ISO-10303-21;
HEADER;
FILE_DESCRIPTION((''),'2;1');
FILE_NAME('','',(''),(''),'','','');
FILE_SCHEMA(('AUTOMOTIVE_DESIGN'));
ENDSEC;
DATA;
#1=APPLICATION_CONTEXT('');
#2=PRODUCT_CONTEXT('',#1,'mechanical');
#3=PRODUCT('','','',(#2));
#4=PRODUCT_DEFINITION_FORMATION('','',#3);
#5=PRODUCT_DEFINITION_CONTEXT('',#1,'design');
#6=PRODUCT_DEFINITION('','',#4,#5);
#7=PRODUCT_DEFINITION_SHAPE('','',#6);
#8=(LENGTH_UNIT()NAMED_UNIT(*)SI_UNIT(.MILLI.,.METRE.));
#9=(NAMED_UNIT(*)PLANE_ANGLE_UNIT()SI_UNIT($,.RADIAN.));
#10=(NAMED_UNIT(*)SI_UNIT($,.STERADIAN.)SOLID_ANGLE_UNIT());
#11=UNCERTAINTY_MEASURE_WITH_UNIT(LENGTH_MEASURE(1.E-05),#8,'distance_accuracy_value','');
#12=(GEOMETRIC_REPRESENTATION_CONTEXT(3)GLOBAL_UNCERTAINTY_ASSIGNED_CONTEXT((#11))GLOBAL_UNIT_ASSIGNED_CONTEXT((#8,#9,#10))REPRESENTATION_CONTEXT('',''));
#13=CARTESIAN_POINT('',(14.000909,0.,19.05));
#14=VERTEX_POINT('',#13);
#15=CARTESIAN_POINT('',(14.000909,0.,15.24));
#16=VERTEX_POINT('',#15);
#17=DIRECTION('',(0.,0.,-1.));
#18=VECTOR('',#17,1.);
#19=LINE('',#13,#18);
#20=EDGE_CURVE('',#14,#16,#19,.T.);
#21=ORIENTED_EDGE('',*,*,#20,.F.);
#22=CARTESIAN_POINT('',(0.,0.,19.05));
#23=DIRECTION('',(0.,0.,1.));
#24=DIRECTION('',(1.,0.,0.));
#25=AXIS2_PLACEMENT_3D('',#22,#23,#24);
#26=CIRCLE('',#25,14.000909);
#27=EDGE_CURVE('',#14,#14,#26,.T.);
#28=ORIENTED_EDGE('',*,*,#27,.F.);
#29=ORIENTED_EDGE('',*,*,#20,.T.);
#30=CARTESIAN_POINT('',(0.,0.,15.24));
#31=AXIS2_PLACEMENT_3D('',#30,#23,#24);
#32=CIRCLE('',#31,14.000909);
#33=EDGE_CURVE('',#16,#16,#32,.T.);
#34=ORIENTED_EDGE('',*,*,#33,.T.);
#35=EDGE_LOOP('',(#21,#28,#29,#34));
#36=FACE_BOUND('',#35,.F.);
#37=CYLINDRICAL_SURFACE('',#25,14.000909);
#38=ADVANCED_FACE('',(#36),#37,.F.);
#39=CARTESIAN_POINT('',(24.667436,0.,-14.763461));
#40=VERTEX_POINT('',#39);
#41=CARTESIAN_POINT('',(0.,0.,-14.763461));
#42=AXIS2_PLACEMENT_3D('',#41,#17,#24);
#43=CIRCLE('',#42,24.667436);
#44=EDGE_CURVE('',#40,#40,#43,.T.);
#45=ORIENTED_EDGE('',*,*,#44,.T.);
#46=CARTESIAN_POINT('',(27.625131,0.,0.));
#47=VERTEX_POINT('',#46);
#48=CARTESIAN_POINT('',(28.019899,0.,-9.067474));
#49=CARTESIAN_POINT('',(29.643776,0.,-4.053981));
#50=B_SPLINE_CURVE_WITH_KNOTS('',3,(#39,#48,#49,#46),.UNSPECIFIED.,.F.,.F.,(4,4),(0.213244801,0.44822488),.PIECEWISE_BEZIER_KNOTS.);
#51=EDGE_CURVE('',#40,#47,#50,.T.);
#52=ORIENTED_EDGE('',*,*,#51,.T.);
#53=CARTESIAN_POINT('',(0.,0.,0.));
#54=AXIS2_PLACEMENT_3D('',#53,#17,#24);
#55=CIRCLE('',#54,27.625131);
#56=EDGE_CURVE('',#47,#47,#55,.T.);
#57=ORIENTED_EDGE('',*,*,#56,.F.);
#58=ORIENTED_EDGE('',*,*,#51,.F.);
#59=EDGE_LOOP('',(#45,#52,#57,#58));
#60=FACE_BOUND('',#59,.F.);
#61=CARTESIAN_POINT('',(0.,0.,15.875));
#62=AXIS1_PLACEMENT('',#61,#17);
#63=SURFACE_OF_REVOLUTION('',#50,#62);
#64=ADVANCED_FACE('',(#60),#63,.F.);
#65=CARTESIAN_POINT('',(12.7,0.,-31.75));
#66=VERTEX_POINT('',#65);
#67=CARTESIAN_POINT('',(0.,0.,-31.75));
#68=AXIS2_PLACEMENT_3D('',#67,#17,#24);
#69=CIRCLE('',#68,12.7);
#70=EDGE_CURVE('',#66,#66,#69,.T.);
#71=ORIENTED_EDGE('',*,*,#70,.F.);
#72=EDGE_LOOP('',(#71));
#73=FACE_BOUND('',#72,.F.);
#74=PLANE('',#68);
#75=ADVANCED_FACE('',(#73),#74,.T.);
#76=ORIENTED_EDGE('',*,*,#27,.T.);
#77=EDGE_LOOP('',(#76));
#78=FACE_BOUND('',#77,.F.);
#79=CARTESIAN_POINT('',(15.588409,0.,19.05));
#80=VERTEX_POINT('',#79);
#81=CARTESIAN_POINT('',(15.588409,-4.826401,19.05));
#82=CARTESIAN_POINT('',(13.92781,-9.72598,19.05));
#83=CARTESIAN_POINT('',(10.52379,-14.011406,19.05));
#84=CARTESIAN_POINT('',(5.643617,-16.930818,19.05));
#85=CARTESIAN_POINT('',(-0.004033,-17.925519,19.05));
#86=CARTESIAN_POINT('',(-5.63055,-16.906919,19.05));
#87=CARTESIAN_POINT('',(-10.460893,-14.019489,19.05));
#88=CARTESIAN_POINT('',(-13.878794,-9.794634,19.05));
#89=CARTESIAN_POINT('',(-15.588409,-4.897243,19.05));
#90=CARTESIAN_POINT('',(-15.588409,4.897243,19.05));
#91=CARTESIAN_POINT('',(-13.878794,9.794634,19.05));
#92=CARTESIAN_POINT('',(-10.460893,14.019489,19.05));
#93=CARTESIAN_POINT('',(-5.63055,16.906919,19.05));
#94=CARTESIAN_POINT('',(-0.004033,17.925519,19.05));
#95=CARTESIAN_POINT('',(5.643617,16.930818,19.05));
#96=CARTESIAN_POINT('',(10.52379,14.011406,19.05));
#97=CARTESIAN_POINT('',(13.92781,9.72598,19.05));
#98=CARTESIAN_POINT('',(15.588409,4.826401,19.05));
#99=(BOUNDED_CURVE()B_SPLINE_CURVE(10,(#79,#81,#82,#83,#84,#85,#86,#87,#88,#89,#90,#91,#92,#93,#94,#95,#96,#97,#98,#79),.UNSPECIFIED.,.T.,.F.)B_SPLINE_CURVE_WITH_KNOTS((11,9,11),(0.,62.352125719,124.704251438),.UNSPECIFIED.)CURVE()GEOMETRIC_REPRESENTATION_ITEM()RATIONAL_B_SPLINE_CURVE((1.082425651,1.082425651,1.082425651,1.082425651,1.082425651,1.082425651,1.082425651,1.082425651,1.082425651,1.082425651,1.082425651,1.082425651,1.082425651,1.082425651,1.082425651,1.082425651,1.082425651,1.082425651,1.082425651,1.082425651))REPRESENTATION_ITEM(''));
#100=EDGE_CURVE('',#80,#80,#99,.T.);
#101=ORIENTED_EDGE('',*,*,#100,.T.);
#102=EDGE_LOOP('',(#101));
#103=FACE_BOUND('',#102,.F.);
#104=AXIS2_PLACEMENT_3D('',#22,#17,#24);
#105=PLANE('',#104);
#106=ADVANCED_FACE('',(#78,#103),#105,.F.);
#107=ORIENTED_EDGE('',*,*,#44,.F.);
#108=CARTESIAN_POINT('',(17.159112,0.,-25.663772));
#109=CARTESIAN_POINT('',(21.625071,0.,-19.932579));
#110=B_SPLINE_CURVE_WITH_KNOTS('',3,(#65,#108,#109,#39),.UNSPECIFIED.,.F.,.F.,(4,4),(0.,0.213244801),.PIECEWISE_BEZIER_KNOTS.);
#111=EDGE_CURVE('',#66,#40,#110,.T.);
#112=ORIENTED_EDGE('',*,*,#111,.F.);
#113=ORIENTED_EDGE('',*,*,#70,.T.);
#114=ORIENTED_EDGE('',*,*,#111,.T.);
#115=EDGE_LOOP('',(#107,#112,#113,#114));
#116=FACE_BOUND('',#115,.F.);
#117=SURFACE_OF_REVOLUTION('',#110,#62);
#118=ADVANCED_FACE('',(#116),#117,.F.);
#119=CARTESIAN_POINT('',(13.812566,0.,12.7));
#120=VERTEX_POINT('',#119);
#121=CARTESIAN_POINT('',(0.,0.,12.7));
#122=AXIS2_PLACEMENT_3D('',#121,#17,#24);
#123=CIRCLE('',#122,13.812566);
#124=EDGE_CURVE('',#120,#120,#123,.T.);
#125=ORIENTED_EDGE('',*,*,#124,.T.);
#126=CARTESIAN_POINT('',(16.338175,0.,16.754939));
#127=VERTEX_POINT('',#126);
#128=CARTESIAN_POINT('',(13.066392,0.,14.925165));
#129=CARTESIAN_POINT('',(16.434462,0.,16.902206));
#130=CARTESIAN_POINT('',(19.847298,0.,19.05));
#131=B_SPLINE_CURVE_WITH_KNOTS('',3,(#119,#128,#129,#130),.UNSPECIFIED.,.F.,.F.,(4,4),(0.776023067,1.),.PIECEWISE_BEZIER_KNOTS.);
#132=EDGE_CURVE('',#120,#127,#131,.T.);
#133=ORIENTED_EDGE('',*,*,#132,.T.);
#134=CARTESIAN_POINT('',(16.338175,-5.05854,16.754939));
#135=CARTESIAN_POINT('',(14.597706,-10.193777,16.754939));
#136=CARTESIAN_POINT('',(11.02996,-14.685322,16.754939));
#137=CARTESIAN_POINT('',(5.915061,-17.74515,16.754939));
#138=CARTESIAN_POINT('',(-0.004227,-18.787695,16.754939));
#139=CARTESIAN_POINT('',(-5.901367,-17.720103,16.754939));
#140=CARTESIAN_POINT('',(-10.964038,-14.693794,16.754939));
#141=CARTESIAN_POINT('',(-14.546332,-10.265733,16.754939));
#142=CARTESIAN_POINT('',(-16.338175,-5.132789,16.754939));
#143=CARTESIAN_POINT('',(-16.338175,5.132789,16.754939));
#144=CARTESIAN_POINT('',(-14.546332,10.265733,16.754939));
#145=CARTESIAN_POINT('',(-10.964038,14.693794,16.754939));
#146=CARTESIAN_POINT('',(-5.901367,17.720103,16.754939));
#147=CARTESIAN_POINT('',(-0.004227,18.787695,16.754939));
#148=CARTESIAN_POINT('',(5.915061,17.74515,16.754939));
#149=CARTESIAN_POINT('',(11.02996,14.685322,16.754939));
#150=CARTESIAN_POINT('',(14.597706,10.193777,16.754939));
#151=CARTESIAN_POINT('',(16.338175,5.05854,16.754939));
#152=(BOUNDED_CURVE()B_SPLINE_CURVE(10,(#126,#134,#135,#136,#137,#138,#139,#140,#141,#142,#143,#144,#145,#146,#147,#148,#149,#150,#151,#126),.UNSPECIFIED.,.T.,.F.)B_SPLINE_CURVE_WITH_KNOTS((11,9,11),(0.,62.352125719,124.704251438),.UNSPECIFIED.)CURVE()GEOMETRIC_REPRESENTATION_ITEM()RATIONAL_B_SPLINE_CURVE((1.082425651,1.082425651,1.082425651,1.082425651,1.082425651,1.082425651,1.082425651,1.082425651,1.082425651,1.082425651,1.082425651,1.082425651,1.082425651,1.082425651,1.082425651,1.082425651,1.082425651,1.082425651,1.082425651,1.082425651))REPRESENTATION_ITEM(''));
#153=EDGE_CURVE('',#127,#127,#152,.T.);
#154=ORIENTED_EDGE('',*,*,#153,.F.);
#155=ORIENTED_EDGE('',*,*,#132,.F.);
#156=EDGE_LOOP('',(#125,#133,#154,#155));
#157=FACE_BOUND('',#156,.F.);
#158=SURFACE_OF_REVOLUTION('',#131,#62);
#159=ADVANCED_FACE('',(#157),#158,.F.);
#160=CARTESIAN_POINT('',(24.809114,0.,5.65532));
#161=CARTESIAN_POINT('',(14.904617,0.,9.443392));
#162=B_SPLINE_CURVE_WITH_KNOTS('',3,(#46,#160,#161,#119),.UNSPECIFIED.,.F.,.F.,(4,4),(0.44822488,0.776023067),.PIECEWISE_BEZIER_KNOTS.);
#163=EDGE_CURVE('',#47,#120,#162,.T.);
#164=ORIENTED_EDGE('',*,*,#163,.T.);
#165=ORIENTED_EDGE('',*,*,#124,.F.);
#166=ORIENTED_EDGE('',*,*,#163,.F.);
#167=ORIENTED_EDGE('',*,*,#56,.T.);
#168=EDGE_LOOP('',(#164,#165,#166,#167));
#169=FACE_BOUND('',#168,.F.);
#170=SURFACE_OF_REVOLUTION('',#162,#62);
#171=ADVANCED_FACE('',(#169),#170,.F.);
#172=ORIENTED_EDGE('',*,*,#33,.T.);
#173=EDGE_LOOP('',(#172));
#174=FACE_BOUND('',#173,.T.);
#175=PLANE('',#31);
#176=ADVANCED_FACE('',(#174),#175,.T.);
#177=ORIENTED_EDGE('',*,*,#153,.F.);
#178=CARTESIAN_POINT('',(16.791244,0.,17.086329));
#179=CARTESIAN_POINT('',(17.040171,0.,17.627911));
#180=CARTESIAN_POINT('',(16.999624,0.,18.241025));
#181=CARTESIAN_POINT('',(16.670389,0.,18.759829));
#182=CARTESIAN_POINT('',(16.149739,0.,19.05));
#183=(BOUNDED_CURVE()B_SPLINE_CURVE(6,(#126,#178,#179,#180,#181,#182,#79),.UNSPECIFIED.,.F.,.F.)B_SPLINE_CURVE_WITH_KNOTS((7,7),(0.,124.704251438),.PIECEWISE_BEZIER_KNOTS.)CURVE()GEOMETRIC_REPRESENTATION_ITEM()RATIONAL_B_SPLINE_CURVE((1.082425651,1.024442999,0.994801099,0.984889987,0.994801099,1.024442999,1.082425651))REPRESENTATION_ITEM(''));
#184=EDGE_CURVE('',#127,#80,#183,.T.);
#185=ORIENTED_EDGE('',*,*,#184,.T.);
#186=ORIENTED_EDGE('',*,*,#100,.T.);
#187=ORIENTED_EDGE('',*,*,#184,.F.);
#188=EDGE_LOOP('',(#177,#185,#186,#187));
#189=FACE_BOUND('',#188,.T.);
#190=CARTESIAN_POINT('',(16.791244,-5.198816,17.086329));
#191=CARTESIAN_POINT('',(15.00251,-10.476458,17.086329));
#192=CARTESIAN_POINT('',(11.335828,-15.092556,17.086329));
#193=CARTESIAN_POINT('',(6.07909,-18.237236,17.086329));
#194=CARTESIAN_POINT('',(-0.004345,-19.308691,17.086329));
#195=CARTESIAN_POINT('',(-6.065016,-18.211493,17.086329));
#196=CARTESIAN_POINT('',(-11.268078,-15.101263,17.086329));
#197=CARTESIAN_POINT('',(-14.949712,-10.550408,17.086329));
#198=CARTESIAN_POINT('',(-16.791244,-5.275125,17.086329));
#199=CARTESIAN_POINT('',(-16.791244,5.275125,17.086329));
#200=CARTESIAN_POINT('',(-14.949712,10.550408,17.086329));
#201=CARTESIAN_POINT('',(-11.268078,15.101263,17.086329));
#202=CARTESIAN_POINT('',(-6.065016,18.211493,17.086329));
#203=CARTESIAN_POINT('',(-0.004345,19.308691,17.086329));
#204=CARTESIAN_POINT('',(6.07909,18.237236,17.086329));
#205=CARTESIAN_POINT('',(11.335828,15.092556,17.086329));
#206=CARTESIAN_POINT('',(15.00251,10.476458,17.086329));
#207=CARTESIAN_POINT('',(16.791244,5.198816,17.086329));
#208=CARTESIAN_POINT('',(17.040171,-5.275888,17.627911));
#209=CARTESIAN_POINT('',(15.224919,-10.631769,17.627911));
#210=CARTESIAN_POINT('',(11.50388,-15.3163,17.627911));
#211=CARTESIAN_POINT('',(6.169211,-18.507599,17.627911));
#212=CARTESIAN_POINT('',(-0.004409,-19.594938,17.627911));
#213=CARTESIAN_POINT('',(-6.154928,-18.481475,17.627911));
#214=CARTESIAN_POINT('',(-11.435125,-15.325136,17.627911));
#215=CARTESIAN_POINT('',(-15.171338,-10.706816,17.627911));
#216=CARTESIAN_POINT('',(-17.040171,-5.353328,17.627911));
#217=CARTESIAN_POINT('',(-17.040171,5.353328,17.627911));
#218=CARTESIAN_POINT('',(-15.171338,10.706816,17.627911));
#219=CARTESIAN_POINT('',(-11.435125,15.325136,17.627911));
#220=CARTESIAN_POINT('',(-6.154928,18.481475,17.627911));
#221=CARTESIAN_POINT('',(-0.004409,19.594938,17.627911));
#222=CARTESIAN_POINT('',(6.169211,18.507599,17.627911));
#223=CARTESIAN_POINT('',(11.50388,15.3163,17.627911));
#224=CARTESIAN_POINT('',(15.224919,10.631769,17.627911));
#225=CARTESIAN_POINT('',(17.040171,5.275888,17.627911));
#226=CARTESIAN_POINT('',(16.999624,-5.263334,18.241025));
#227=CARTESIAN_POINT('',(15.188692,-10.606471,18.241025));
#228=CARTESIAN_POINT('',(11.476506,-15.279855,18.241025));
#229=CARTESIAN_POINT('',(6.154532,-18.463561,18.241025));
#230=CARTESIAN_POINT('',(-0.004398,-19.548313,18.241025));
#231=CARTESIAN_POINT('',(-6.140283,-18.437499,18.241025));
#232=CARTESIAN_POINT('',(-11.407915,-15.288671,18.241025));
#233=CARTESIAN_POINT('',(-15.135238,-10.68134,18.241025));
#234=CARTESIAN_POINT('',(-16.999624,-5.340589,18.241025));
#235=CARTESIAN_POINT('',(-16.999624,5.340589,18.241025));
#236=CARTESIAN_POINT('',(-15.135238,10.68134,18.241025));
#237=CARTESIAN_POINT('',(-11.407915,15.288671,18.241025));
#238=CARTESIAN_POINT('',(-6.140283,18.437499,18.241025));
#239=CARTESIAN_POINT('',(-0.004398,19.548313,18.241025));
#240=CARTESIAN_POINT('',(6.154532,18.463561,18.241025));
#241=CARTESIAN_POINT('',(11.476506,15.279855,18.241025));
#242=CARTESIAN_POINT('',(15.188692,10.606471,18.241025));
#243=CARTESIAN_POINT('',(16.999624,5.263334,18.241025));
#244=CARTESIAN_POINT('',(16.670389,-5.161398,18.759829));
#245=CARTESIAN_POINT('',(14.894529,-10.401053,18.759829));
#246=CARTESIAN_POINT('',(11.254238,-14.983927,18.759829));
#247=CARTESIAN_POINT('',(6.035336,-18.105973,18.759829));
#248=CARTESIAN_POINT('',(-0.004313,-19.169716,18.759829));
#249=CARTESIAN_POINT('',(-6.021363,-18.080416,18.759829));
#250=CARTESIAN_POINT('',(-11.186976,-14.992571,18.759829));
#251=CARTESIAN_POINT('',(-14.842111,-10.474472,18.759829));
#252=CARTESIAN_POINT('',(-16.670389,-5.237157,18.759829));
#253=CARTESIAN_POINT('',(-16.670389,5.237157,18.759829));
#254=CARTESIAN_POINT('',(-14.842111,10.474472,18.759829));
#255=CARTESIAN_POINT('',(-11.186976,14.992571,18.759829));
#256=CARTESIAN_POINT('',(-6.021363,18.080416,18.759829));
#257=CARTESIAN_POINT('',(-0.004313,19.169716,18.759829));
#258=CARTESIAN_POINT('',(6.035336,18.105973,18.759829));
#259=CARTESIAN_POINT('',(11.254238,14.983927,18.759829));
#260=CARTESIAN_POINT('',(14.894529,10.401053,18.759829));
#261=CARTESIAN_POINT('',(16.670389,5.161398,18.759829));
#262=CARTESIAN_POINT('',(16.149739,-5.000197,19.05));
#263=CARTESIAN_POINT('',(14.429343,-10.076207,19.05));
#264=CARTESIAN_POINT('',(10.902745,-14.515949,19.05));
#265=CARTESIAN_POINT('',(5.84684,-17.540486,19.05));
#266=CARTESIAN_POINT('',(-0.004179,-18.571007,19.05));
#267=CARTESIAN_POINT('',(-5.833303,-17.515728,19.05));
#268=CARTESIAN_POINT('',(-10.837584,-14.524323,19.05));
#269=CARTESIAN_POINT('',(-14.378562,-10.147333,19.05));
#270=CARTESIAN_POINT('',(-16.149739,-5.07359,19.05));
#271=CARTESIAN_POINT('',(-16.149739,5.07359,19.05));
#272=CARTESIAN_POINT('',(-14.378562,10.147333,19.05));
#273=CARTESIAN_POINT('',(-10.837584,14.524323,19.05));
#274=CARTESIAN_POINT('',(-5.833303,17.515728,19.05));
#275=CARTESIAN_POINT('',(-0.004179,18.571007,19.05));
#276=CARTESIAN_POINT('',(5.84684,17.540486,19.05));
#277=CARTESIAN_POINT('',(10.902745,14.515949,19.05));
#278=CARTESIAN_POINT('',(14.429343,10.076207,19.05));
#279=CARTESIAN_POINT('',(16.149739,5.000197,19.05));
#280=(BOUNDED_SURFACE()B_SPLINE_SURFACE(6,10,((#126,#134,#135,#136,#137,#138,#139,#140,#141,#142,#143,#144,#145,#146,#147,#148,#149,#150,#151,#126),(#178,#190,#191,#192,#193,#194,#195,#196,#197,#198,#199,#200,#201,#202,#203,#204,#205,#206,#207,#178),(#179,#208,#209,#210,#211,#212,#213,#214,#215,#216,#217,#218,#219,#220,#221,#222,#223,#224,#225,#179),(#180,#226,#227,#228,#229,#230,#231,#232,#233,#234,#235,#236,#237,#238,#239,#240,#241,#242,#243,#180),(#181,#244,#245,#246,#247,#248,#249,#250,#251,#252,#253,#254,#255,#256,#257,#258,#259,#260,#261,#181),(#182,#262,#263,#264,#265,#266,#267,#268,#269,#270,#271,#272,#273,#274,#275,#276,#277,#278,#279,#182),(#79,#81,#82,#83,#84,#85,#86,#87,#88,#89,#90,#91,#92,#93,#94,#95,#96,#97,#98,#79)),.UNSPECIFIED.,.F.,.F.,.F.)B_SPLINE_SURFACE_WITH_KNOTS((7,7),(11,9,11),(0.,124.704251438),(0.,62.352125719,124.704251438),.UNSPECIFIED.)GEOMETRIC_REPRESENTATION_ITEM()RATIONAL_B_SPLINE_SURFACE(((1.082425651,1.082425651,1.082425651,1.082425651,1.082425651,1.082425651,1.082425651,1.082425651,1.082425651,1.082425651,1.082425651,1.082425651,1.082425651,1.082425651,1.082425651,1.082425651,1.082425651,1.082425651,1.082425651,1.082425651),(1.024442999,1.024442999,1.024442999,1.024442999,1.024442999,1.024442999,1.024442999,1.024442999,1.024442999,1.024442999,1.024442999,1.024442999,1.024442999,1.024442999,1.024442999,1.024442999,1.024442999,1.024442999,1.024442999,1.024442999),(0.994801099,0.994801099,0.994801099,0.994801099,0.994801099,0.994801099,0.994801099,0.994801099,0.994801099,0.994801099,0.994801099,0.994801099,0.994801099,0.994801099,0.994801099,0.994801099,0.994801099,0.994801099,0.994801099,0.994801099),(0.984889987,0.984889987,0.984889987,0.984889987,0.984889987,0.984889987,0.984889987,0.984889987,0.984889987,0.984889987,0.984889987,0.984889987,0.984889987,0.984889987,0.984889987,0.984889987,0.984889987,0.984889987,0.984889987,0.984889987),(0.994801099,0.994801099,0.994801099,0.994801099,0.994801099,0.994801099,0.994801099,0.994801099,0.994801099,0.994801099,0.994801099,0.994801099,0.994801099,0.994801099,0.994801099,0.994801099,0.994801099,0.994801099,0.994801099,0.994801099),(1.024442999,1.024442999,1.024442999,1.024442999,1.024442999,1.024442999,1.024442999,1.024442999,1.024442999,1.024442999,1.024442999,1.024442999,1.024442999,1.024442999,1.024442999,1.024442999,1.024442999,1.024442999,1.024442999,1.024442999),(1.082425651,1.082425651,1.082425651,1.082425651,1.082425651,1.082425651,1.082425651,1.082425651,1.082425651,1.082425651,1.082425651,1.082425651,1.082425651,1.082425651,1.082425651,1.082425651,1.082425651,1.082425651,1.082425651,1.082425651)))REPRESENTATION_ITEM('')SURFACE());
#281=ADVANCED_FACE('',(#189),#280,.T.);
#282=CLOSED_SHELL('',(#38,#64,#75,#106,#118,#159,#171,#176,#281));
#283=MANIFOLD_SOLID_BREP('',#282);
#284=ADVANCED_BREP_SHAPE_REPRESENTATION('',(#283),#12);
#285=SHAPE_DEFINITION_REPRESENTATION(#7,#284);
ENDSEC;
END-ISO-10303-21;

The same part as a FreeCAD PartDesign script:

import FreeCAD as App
import Part
import Sketcher
from FreeCAD import Vector
Q = App.Units.Quantity


def edges_at(feature, points):
    """Names of the edges that pass closest to the given points."""
    edges = feature.Shape.Edges
    near = lambda p: min(range(len(edges)), key=lambda i: edges[i].distToShape(Part.Vertex(*p))[0])
    return sorted({f"Edge{near(p) + 1}" for p in points})

doc = App.newDocument("Part")
body = doc.addObject("PartDesign::Body", "Body")

# Sketch on XZ plane
sketch1 = body.newObject("Sketcher::SketchObject", "Sketch")
sketch1.AttachmentSupport = (doc.getObject("XZ_Plane"), [""])
sketch1.MapMode = "FlatFace"
sketch1.addGeometry(Part.LineSegment(Vector(0, 19.05, 0), Vector(0, -31.75, 0)), False)
sketch1.addGeometry(Part.LineSegment(Vector(0, -31.75, 0), Vector(12.7, -31.75, 0)), False)
sketch1.addGeometry(Part.BSplineCurve([Vector(12.7, -31.75, 0), Vector(17.159112, -25.663772, 0), Vector(21.625071, -19.932579, 0), Vector(24.667436, -14.763461, 0)], [4, 4], [0, 0.213244801], False, 3, [1, 1, 1, 1], False), False)
sketch1.addGeometry(Part.BSplineCurve([Vector(24.667436, -14.763461, 0), Vector(28.019899, -9.067474, 0), Vector(29.643776, -4.053981, 0), Vector(27.625131, 0, 0)], [4, 4], [0.213244801, 0.44822488], False, 3, [1, 1, 1, 1], False), False)
sketch1.addGeometry(Part.BSplineCurve([Vector(27.625131, 0, 0), Vector(24.809114, 5.65532, 0), Vector(14.904617, 9.443392, 0), Vector(13.812566, 12.7, 0)], [4, 4], [0.44822488, 0.776023067], False, 3, [1, 1, 1, 1], False), False)
sketch1.addGeometry(Part.BSplineCurve([Vector(13.812566, 12.7, 0), Vector(13.066392, 14.925165, 0), Vector(16.434462, 16.902206, 0), Vector(19.847298, 19.05, 0)], [4, 4], [0.776023067, 1], False, 3, [1, 1, 1, 1], False), False)
sketch1.addGeometry(Part.LineSegment(Vector(19.847298, 19.05, 0), Vector(0, 19.05, 0)), False)
sketch1.addConstraint(Sketcher.Constraint("Block", 2))
sketch1.addConstraint(Sketcher.Constraint("Block", 3))
sketch1.addConstraint(Sketcher.Constraint("Block", 4))
sketch1.addConstraint(Sketcher.Constraint("Block", 5))
sketch1.addConstraint(Sketcher.Constraint("Coincident", 0, 2, 1, 1))
sketch1.addConstraint(Sketcher.Constraint("Coincident", 1, 2, 2, 1))
sketch1.addConstraint(Sketcher.Constraint("Coincident", 5, 2, 6, 1))
sketch1.addConstraint(Sketcher.Constraint("Coincident", 6, 2, 0, 1))
sketch1.addConstraint(Sketcher.Constraint("Vertical", 0))
sketch1.addConstraint(Sketcher.Constraint("Horizontal", 1))
sketch1.addConstraint(Sketcher.Constraint("Horizontal", 6))
sketch1.addConstraint(Sketcher.Constraint("PointOnObject", 0, 2, -2))
revolution = body.newObject("PartDesign::Revolution", "Revolution")
revolution.Profile = sketch1
revolution.ReferenceAxis = (sketch1, ["V_Axis"])
revolution.Angle = 360
doc.recompute()

fillet = body.newObject("PartDesign::Fillet", "Fillet")
fillet.Base = (revolution, edges_at(revolution, [(-19.847, 0, 19.05)]))
fillet.Radius = Q("0.05 in")

# Sketch on XY plane
sketch2 = body.newObject("Sketcher::SketchObject", "Sketch001")
sketch2.AttachmentSupport = (doc.getObject("XY_Plane"), [""])
sketch2.MapMode = "FlatFace"
sketch2.AttachmentOffset = App.Placement(Vector(0, 0, 0.75 * 25.4), App.Rotation())
sketch2.addGeometry(Part.Circle(Vector(0, 0, 0), Vector(0, 0, 1), 14), False)
sketch2.addConstraint(Sketcher.Constraint("Coincident", 0, 3, -1, 1))
sketch2.addConstraint(Sketcher.Constraint("Diameter", 0, 28.001818))
pocket1 = body.newObject("PartDesign::Pocket", "Pocket")
pocket1.Profile = sketch2
pocket1.Length = Q("0.15 in")

doc.recompute()
